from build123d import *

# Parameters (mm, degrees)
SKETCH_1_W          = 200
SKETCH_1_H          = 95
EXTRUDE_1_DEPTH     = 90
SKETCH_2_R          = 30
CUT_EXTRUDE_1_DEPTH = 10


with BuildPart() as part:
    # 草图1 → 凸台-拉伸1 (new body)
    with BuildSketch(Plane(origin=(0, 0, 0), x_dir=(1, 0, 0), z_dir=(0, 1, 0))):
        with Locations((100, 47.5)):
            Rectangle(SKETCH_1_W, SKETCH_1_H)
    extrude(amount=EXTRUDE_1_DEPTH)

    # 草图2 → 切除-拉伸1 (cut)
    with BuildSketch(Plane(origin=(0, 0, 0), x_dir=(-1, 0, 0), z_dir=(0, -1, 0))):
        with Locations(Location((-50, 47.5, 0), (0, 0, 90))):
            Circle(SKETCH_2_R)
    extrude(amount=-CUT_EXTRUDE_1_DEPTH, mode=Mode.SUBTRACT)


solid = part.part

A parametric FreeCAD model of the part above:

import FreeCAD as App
import Part
import Sketcher
Q = App.Units.Quantity

doc = App.newDocument("Part")
body = doc.addObject("PartDesign::Body", "Body")

sketch1 = body.newObject("Sketcher::SketchObject", "Sketch")
sketch1.AttachmentSupport = (doc.getObject("XZ_Plane"), [""])
sketch1.MapMode = "FlatFace"
sketch1.addGeometry(Part.LineSegment(App.Vector(0, -95, 0), App.Vector(0, 0, 0)), False)
sketch1.addGeometry(Part.LineSegment(App.Vector(0, 0, 0), App.Vector(200, 0, 0)), False)
sketch1.addGeometry(Part.LineSegment(App.Vector(200, 0, 0), App.Vector(200, -95, 0)), False)
sketch1.addGeometry(Part.LineSegment(App.Vector(200, -95, 0), App.Vector(0, -95, 0)), False)
sketch1.addConstraint(Sketcher.Constraint("Coincident", 0, 2, 1, 1))
sketch1.addConstraint(Sketcher.Constraint("Coincident", 1, 2, 2, 1))
sketch1.addConstraint(Sketcher.Constraint("Coincident", 2, 2, 3, 1))
sketch1.addConstraint(Sketcher.Constraint("Coincident", 3, 2, 0, 1))
sketch1.addConstraint(Sketcher.Constraint("Vertical", 0))
sketch1.addConstraint(Sketcher.Constraint("Horizontal", 1))
sketch1.addConstraint(Sketcher.Constraint("Vertical", 2))
sketch1.addConstraint(Sketcher.Constraint("Horizontal", 3))
sketch1.addConstraint(Sketcher.Constraint("Coincident", 0, 2, -1, 1))
sketch1.addConstraint(Sketcher.Constraint("DistanceX", 1, 1, 1, 2, Q("200 mm")))
sketch1.addConstraint(Sketcher.Constraint("DistanceY", 0, 1, 0, 2, Q("95 mm")))
pad1 = body.newObject("PartDesign::Pad", "Pad")
pad1.Profile = sketch1
pad1.Length = 90
pad1.Reversed = True

sketch2 = body.newObject("Sketcher::SketchObject", "Sketch001")
sketch2.AttachmentSupport = (doc.getObject("XZ_Plane"), [""])
sketch2.MapMode = "FlatFace"
sketch2.addGeometry(Part.Circle(App.Vector(50, -48, 0), App.Vector(0, 0, 1), 30), False)
sketch2.addConstraint(Sketcher.Constraint("Diameter", 0, Q("60 mm")))
sketch2.addConstraint(Sketcher.Constraint("DistanceX", -1, 1, 0, 3, Q("50 mm")))
sketch2.addConstraint(Sketcher.Constraint("DistanceY", 0, 3, -1, 1, Q("47.5 mm")))
pocket1 = body.newObject("PartDesign::Pocket", "Pocket")
pocket1.Profile = sketch2
pocket1.Length = 10

doc.recompute()
